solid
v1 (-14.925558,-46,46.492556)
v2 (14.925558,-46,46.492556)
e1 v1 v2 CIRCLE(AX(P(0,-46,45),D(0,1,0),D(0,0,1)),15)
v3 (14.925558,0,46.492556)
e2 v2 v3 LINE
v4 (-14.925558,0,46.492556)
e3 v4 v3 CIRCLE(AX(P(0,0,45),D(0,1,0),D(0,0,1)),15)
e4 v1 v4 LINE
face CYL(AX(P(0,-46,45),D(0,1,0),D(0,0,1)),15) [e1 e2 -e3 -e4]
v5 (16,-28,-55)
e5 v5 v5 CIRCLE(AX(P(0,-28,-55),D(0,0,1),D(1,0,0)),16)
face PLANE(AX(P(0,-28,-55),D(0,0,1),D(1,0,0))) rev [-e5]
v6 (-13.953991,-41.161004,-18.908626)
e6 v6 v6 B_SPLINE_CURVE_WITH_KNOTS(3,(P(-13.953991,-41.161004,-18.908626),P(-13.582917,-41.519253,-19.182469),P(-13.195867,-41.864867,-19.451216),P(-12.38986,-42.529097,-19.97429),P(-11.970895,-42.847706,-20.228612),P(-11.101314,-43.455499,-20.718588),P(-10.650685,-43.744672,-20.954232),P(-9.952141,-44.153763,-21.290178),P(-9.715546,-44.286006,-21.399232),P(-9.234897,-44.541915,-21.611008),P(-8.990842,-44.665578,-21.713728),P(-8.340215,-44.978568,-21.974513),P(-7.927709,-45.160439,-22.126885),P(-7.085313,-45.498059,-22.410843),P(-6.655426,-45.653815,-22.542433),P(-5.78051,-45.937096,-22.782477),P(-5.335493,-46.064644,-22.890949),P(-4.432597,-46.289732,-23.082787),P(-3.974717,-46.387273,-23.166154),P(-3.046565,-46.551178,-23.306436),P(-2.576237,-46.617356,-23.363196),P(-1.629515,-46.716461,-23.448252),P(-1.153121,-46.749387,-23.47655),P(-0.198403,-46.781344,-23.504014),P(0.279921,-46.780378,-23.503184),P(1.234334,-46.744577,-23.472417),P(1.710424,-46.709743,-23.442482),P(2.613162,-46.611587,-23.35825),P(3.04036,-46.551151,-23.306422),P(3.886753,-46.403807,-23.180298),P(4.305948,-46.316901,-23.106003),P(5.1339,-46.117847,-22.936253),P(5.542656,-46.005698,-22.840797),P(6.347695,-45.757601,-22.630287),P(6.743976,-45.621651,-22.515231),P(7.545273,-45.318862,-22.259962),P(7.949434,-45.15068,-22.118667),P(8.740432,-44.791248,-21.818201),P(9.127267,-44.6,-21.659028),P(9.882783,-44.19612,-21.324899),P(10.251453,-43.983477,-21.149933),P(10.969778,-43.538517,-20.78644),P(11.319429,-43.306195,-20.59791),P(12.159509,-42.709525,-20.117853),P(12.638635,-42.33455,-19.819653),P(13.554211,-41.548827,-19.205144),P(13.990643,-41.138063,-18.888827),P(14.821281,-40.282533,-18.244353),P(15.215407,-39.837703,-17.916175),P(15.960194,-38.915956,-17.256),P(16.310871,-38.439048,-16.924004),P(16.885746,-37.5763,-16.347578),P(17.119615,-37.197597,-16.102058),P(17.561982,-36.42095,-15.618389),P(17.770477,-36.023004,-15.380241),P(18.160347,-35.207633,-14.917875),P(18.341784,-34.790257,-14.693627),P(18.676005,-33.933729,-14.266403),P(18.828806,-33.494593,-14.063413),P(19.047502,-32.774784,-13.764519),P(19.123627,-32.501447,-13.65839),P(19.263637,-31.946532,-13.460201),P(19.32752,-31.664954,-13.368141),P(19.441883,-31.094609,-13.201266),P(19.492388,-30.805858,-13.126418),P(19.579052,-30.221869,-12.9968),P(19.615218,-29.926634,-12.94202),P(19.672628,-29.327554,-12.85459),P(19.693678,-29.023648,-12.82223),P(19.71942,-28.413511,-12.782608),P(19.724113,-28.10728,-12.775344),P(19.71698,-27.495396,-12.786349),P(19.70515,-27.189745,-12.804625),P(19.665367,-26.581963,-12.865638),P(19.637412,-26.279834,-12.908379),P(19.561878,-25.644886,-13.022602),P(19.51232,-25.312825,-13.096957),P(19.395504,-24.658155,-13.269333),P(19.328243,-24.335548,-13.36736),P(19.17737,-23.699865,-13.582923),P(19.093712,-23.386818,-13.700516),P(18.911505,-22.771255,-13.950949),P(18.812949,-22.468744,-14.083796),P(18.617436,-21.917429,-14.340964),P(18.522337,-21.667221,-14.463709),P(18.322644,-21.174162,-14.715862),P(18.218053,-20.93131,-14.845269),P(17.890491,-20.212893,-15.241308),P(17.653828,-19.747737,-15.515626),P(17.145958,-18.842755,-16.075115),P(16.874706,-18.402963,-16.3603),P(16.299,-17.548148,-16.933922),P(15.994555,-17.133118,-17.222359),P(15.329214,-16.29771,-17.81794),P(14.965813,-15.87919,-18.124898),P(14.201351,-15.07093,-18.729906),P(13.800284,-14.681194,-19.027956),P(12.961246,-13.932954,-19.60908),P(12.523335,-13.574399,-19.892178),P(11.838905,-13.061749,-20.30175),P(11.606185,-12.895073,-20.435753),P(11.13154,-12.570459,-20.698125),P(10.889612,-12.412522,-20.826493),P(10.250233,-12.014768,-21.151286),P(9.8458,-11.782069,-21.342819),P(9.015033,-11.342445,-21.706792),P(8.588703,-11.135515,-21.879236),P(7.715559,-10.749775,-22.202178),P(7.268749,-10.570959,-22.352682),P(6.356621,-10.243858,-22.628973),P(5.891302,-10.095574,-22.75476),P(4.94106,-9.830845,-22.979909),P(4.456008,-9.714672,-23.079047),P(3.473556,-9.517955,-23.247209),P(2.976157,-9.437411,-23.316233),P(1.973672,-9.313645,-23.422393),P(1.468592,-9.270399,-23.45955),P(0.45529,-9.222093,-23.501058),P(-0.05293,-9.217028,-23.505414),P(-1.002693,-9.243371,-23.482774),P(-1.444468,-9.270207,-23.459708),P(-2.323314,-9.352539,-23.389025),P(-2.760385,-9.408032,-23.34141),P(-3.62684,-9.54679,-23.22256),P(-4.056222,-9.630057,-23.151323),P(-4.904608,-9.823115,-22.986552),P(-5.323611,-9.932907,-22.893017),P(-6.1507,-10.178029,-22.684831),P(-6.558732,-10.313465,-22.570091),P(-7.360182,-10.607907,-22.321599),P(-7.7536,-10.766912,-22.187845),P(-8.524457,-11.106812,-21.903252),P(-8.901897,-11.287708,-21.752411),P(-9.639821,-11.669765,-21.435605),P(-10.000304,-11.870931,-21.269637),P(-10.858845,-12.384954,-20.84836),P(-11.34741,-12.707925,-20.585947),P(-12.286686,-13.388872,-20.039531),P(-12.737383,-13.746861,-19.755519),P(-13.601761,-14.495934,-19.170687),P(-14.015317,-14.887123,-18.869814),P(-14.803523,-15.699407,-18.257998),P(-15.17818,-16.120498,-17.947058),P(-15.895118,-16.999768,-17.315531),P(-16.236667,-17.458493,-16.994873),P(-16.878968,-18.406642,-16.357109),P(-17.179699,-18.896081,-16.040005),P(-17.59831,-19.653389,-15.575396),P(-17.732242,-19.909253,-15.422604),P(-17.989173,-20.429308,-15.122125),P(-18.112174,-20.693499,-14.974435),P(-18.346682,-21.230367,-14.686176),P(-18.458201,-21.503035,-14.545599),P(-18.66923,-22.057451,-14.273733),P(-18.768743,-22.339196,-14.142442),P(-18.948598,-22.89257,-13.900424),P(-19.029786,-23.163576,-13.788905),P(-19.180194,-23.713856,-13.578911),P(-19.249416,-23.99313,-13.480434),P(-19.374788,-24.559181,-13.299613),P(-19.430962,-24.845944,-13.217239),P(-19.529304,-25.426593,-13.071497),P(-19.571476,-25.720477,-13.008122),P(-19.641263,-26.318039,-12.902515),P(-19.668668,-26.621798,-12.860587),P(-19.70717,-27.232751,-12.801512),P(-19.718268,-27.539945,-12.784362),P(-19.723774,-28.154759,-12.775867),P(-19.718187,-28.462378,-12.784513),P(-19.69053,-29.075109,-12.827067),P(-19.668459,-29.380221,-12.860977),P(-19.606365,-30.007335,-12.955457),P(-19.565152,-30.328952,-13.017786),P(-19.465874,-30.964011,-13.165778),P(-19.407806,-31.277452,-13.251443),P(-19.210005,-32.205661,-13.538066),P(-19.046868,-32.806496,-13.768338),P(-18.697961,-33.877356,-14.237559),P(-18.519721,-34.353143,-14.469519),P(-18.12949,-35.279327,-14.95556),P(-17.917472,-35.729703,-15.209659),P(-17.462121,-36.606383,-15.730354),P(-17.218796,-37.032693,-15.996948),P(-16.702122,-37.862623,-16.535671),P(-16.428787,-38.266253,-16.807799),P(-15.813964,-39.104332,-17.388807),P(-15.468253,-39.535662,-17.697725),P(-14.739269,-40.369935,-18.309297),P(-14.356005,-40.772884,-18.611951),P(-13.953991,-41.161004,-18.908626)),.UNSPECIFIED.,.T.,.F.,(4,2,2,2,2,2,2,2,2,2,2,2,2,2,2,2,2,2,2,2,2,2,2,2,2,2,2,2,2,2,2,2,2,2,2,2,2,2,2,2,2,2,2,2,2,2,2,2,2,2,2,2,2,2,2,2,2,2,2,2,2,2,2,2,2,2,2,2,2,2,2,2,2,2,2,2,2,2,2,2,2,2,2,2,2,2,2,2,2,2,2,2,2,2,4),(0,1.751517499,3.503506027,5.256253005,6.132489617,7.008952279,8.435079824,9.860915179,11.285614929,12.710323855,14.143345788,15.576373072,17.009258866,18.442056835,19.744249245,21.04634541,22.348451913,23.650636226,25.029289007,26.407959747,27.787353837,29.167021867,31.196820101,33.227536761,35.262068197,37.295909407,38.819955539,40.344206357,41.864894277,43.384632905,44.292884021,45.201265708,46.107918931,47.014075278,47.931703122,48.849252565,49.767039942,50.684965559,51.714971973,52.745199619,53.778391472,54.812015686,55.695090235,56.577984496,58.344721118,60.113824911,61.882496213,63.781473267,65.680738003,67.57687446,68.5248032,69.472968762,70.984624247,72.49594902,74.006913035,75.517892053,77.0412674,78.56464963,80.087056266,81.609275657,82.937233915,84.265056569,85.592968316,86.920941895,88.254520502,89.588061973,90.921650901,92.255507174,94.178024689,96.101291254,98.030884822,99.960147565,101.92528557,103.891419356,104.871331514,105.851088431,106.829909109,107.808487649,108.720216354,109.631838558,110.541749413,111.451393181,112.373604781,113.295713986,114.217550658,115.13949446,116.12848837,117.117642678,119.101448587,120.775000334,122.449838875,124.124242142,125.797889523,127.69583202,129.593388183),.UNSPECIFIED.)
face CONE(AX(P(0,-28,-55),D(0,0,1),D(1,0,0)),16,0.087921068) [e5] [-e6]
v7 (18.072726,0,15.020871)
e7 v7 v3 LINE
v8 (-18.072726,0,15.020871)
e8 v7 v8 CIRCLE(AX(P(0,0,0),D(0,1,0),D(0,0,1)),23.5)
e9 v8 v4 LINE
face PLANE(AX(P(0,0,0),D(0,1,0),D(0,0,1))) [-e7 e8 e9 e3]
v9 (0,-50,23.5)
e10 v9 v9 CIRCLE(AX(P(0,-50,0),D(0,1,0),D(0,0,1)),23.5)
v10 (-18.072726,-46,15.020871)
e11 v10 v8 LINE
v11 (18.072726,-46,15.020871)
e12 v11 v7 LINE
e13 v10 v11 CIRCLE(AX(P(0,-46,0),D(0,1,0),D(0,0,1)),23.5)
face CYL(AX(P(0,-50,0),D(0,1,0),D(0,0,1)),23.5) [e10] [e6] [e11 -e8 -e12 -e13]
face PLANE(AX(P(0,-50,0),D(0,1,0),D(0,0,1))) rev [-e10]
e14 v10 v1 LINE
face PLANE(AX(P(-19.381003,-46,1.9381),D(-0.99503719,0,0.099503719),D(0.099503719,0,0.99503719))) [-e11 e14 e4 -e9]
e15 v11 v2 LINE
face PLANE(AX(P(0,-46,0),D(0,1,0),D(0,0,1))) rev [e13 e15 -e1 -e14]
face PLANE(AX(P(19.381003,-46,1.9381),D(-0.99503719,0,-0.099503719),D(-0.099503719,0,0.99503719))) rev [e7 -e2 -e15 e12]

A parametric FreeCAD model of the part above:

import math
import FreeCAD as App
import Part
import Sketcher
from FreeCAD import Vector

doc = App.newDocument("Part")
body = doc.addObject("PartDesign::Body", "Body")

sketch1 = doc.addObject("Sketcher::SketchObject", "Sketch")
body.addObject(sketch1)
sketch1.AttachmentSupport = (doc.XZ_Plane, [""])
sketch1.MapMode = "FlatFace"
sketch1.addGeometry([
    Part.ArcOfCircle(Part.Circle(Vector(0, 0, 0), Vector(0, 0, 1), 23.5), math.radians(39.731148), math.radians(140.268852)),
    Part.LineSegment(Vector(-18.072726, 15.020871, 0), Vector(-14.925558, 46.492556, 0)),
    Part.ArcOfCircle(Part.Circle(Vector(0, 45, 0), Vector(0, 0, 1), 15), math.radians(5.710593), math.radians(174.289407)),
    Part.LineSegment(Vector(14.925558, 46.492556, 0), Vector(18.072726, 15.020871, 0)),
], False)
sketch1.addConstraint([
    Sketcher.Constraint("Coincident", 0, 2, 1, 1),
    Sketcher.Constraint("Tangent", 1, 2, 2, 2),
    Sketcher.Constraint("Tangent", 2, 1, 3, 1),
    Sketcher.Constraint("Coincident", 3, 2, 0, 1),
    Sketcher.Constraint("Coincident", 0, 3, -1, 1),
    Sketcher.Constraint("Symmetric", 1, 2, 2, 1, -2),
    Sketcher.Constraint("Radius", 2, 15.0),
    Sketcher.Constraint("Radius", 0, 23.5),
    Sketcher.Constraint("DistanceY", -1, 1, 2, 3, 45.0),
    Sketcher.Constraint("Distance", 1, 31.628652),
])
pad1 = doc.addObject("PartDesign::Pad", "Pad")
body.addObject(pad1)
pad1.Profile = sketch1
pad1.Length = 46

sketch2 = doc.addObject("Sketcher::SketchObject", "Sketch001")
body.addObject(sketch2)
sketch2.AttachmentSupport = (doc.XZ_Plane, [""])
sketch2.MapMode = "FlatFace"
sketch2.addGeometry(Part.Circle(Vector(0, 0, 0), Vector(0, 0, 1), 23.5), False)
sketch2.addConstraint([
    Sketcher.Constraint("Coincident", 0, 3, -1, 1),
    Sketcher.Constraint("Diameter", 0, 47.0),
])
pad2 = doc.addObject("PartDesign::Pad", "Pad001")
body.addObject(pad2)
pad2.Profile = sketch2
pad2.Length = 50

sketch3 = doc.addObject("Sketcher::SketchObject", "Sketch002")
body.addObject(sketch3)
sketch3.AttachmentSupport = (doc.XZ_Plane, [""])
sketch3.MapMode = "FlatFace"
sketch3.AttachmentOffset = App.Placement(Vector(0, 0, 28), App.Rotation())
sketch3.addGeometry([
    Part.LineSegment(Vector(-19.721705, -12.779059, 0), Vector(0, -12.779059, 0)),
    Part.LineSegment(Vector(0, -12.779059, 0), Vector(0, -55, 0)),
    Part.LineSegment(Vector(0, -55, 0), Vector(-16, -55, 0)),
    Part.LineSegment(Vector(-16, -55, 0), Vector(-19.721705, -12.779059, 0)),
], False)
sketch3.addConstraint([
    Sketcher.Constraint("Coincident", 0, 2, 1, 1),
    Sketcher.Constraint("Coincident", 1, 2, 2, 1),
    Sketcher.Constraint("Coincident", 2, 2, 3, 1),
    Sketcher.Constraint("Coincident", 3, 2, 0, 1),
    Sketcher.Constraint("Horizontal", 0),
    Sketcher.Constraint("Vertical", 1),
    Sketcher.Constraint("Horizontal", 2),
    Sketcher.Constraint("PointOnObject", 0, 2, -2),
    Sketcher.Constraint("DistanceX", 2, 2, 2, 1, 16.0),
    Sketcher.Constraint("DistanceY", 1, 2, -1, 1, 55.0),
    Sketcher.Constraint("DistanceY", 1, 2, 1, 1, 42.220941),
    Sketcher.Constraint("DistanceX", 0, 1, 0, 2, 19.721705),
])
revolution = doc.addObject("PartDesign::Revolution", "Revolution")
body.addObject(revolution)
revolution.Profile = sketch3
revolution.ReferenceAxis = (sketch3, ["V_Axis"])
revolution.Angle = 360

doc.recompute()
